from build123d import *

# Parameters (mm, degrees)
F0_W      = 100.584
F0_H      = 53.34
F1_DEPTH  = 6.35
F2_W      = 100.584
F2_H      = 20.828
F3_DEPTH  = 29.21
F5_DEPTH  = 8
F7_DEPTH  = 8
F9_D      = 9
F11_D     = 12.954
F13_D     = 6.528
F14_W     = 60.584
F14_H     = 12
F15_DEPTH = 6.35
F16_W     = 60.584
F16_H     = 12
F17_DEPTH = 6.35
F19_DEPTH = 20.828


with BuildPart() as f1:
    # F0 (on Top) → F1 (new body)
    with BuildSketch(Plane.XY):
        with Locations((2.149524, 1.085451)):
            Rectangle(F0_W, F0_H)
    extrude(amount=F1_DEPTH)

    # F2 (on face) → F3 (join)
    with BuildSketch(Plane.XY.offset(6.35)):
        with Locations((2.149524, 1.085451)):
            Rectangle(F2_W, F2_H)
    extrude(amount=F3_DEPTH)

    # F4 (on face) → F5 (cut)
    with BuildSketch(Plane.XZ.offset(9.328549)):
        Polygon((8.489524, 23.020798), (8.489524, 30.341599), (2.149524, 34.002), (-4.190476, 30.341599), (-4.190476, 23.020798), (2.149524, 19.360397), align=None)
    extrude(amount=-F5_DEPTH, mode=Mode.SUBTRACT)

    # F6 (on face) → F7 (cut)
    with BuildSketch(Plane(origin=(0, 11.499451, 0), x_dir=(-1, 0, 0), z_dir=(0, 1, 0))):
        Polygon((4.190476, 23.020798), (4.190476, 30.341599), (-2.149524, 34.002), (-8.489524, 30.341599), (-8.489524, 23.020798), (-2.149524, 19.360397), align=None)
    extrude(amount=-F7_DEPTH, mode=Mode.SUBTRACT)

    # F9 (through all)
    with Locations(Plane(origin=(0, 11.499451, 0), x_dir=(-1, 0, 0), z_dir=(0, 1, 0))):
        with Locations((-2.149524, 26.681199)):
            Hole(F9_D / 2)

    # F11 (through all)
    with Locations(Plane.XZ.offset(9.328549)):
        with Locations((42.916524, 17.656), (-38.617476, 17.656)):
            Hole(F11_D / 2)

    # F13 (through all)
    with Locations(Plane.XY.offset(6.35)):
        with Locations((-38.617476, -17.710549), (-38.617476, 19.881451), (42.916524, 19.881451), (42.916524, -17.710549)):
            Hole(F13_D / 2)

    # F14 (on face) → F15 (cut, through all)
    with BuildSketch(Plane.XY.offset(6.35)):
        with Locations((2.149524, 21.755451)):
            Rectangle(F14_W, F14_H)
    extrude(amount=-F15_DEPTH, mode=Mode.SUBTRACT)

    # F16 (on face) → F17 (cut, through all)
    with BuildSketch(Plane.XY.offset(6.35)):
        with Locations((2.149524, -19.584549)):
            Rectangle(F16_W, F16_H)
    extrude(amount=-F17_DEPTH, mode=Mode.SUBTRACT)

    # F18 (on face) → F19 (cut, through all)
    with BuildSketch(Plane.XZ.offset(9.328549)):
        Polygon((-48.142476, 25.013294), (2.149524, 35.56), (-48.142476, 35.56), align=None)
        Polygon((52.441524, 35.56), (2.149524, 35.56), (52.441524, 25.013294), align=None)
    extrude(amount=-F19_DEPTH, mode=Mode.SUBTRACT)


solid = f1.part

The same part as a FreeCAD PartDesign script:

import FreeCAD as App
import Part
import Sketcher
Q = App.Units.Quantity

doc = App.newDocument("Part")
body = doc.addObject("PartDesign::Body", "Body")

# Sketch on XY plane
sketch1 = doc.addObject("Sketcher::SketchObject", "Sketch")
body.addObject(sketch1)
sketch1.AttachmentSupport = (doc.XY_Plane, [""])
sketch1.MapMode = "FlatFace"
sketch1.addGeometry(Part.LineSegment(App.Vector(-48, 28, 0), App.Vector(-48, -26, 0)), False)
sketch1.addGeometry(Part.LineSegment(App.Vector(-48, -26, 0), App.Vector(52, -26, 0)), False)
sketch1.addGeometry(Part.LineSegment(App.Vector(52, -26, 0), App.Vector(52, 28, 0)), False)
sketch1.addGeometry(Part.LineSegment(App.Vector(52, 28, 0), App.Vector(-48, 28, 0)), False)
sketch1.addConstraint(Sketcher.Constraint("Coincident", 0, 2, 1, 1))
sketch1.addConstraint(Sketcher.Constraint("Coincident", 1, 2, 2, 1))
sketch1.addConstraint(Sketcher.Constraint("Coincident", 2, 2, 3, 1))
sketch1.addConstraint(Sketcher.Constraint("Coincident", 3, 2, 0, 1))
sketch1.addConstraint(Sketcher.Constraint("Vertical", 0))
sketch1.addConstraint(Sketcher.Constraint("Horizontal", 1))
sketch1.addConstraint(Sketcher.Constraint("Vertical", 2))
sketch1.addConstraint(Sketcher.Constraint("Horizontal", 3))
sketch1.addConstraint(Sketcher.Constraint("DistanceY", 0, 2, 0, 1, Q("2.1 in")))
sketch1.addConstraint(Sketcher.Constraint("DistanceX", 1, 1, 1, 2, Q("3.96 in")))
sketch1.addConstraint(Sketcher.Constraint("DistanceY", 0, 2, -1, 1, 25.584549))
sketch1.addConstraint(Sketcher.Constraint("DistanceX", 0, 2, -1, 1, 48.142476))
pad1 = doc.addObject("PartDesign::Pad", "Pad")
body.addObject(pad1)
pad1.Profile = sketch1
pad1.Length = Q("0.25 in")

# Sketch on XY plane
sketch2 = doc.addObject("Sketcher::SketchObject", "Sketch001")
body.addObject(sketch2)
sketch2.AttachmentSupport = (doc.XY_Plane, [""])
sketch2.MapMode = "FlatFace"
sketch2.AttachmentOffset = App.Placement(App.Vector(0, 0, 0.25 * 25.4), App.Rotation())
sketch2.addGeometry(Part.LineSegment(App.Vector(-48, 11, 0), App.Vector(-48, -9, 0)), False)
sketch2.addGeometry(Part.LineSegment(App.Vector(-48, -9, 0), App.Vector(52, -9, 0)), False)
sketch2.addGeometry(Part.LineSegment(App.Vector(52, -9, 0), App.Vector(52, 11, 0)), False)
sketch2.addGeometry(Part.LineSegment(App.Vector(52, 11, 0), App.Vector(-48, 11, 0)), False)
sketch2.addConstraint(Sketcher.Constraint("Coincident", 0, 2, 1, 1))
sketch2.addConstraint(Sketcher.Constraint("Coincident", 1, 2, 2, 1))
sketch2.addConstraint(Sketcher.Constraint("Coincident", 2, 2, 3, 1))
sketch2.addConstraint(Sketcher.Constraint("Coincident", 3, 2, 0, 1))
sketch2.addConstraint(Sketcher.Constraint("Vertical", 0))
sketch2.addConstraint(Sketcher.Constraint("Horizontal", 1))
sketch2.addConstraint(Sketcher.Constraint("Vertical", 2))
sketch2.addConstraint(Sketcher.Constraint("Horizontal", 3))
sketch2.addConstraint(Sketcher.Constraint("DistanceX", 1, 1, 1, 2, Q("3.96 in")))
sketch2.addConstraint(Sketcher.Constraint("DistanceY", 0, 2, 0, 1, Q("0.82 in")))
sketch2.addConstraint(Sketcher.Constraint("DistanceY", 0, 2, -1, 1, 9.328549))
sketch2.addConstraint(Sketcher.Constraint("DistanceX", 0, 2, -1, 1, 48.142476))
pad2 = doc.addObject("PartDesign::Pad", "Pad001")
body.addObject(pad2)
pad2.Profile = sketch2
pad2.Length = Q("1.15 in")

# Sketch on XZ plane
sketch3 = doc.addObject("Sketcher::SketchObject", "Sketch002")
body.addObject(sketch3)
sketch3.AttachmentSupport = (doc.XZ_Plane, [""])
sketch3.MapMode = "FlatFace"
sketch3.AttachmentOffset = App.Placement(App.Vector(0, 0, 9.328549), App.Rotation())
sketch3.addGeometry(Part.LineSegment(App.Vector(8, 23, 0), App.Vector(8, 30, 0)), False)
sketch3.addGeometry(Part.LineSegment(App.Vector(8, 30, 0), App.Vector(2, 34, 0)), False)
sketch3.addGeometry(Part.LineSegment(App.Vector(2, 34, 0), App.Vector(-4, 30, 0)), False)
sketch3.addGeometry(Part.LineSegment(App.Vector(-4, 30, 0), App.Vector(-4, 23, 0)), False)
sketch3.addGeometry(Part.LineSegment(App.Vector(-4, 23, 0), App.Vector(2, 19, 0)), False)
sketch3.addGeometry(Part.LineSegment(App.Vector(2, 19, 0), App.Vector(8, 23, 0)), False)
sketch3.addConstraint(Sketcher.Constraint("Coincident", 0, 2, 1, 1))
sketch3.addConstraint(Sketcher.Constraint("Coincident", 1, 2, 2, 1))
sketch3.addConstraint(Sketcher.Constraint("Coincident", 2, 2, 3, 1))
sketch3.addConstraint(Sketcher.Constraint("Coincident", 3, 2, 4, 1))
sketch3.addConstraint(Sketcher.Constraint("Coincident", 4, 2, 5, 1))
sketch3.addConstraint(Sketcher.Constraint("Coincident", 5, 2, 0, 1))
sketch3.addConstraint(Sketcher.Constraint("Vertical", 0))
sketch3.addConstraint(Sketcher.Constraint("Vertical", 3))
sketch3.addConstraint(Sketcher.Constraint("Parallel", 1, 4))
sketch3.addConstraint(Sketcher.Constraint("Parallel", 2, 5))
sketch3.addConstraint(Sketcher.Constraint("Horizontal", 0, 2, 2, 2))
sketch3.addConstraint(Sketcher.Constraint("Horizontal", 3, 2, 5, 2))
sketch3.addConstraint(Sketcher.Constraint("Vertical", 1, 2, 4, 2))
sketch3.addConstraint(Sketcher.Constraint("Angle", 1, Q("149.999998 deg")))
sketch3.addConstraint(Sketcher.Constraint("DistanceY", 0, 1, 0, 2, 7.320801))
sketch3.addConstraint(Sketcher.Constraint("Distance", 1, 7.320802))
sketch3.addConstraint(Sketcher.Constraint("DistanceY", -1, 1, 0, 2, 30.341599))
sketch3.addConstraint(Sketcher.Constraint("DistanceX", -1, 1, 0, 2, 8.489524))
pocket1 = doc.addObject("PartDesign::Pocket", "Pocket")
body.addObject(pocket1)
pocket1.Profile = sketch3
pocket1.Length = 8

# Sketch on XZ plane
sketch4 = doc.addObject("Sketcher::SketchObject", "Sketch003")
body.addObject(sketch4)
sketch4.AttachmentSupport = (doc.XZ_Plane, [""])
sketch4.MapMode = "FlatFace"
sketch4.AttachmentOffset = App.Placement(App.Vector(0, 0, -11.499451), App.Rotation())
sketch4.addGeometry(Part.LineSegment(App.Vector(-4, 23, 0), App.Vector(-4, 30, 0)), False)
sketch4.addGeometry(Part.LineSegment(App.Vector(-4, 30, 0), App.Vector(2, 34, 0)), False)
sketch4.addGeometry(Part.LineSegment(App.Vector(2, 34, 0), App.Vector(8, 30, 0)), False)
sketch4.addGeometry(Part.LineSegment(App.Vector(8, 30, 0), App.Vector(8, 23, 0)), False)
sketch4.addGeometry(Part.LineSegment(App.Vector(8, 23, 0), App.Vector(2, 19, 0)), False)
sketch4.addGeometry(Part.LineSegment(App.Vector(2, 19, 0), App.Vector(-4, 23, 0)), False)
sketch4.addConstraint(Sketcher.Constraint("Coincident", 0, 2, 1, 1))
sketch4.addConstraint(Sketcher.Constraint("Coincident", 1, 2, 2, 1))
sketch4.addConstraint(Sketcher.Constraint("Coincident", 2, 2, 3, 1))
sketch4.addConstraint(Sketcher.Constraint("Coincident", 3, 2, 4, 1))
sketch4.addConstraint(Sketcher.Constraint("Coincident", 4, 2, 5, 1))
sketch4.addConstraint(Sketcher.Constraint("Coincident", 5, 2, 0, 1))
sketch4.addConstraint(Sketcher.Constraint("Vertical", 0))
sketch4.addConstraint(Sketcher.Constraint("Vertical", 3))
sketch4.addConstraint(Sketcher.Constraint("Parallel", 1, 4))
sketch4.addConstraint(Sketcher.Constraint("Parallel", 2, 5))
sketch4.addConstraint(Sketcher.Constraint("Horizontal", 0, 2, 2, 2))
sketch4.addConstraint(Sketcher.Constraint("Horizontal", 3, 2, 5, 2))
sketch4.addConstraint(Sketcher.Constraint("Vertical", 1, 2, 4, 2))
sketch4.addConstraint(Sketcher.Constraint("Angle", 1, Q("30.000002 deg")))
sketch4.addConstraint(Sketcher.Constraint("DistanceY", 0, 1, 0, 2, 7.320801))
sketch4.addConstraint(Sketcher.Constraint("Distance", 1, 7.320802))
sketch4.addConstraint(Sketcher.Constraint("DistanceY", -1, 1, 0, 2, 30.341599))
sketch4.addConstraint(Sketcher.Constraint("DistanceX", 0, 2, -1, 1, 4.190476))
pocket2 = doc.addObject("PartDesign::Pocket", "Pocket001")
body.addObject(pocket2)
pocket2.Profile = sketch4
pocket2.Length = 8
pocket2.Reversed = True

# Sketch on XZ plane
sketch5 = doc.addObject("Sketcher::SketchObject", "Sketch004")
body.addObject(sketch5)
sketch5.AttachmentSupport = (doc.XZ_Plane, [""])
sketch5.MapMode = "FlatFace"
sketch5.AttachmentOffset = App.Placement(App.Vector(0, 0, -11.499451), App.Rotation())
sketch5.addGeometry(Part.Circle(App.Vector(2.1, 26.7, 0), App.Vector(0, 0, 1), 4.5), False)
sketch5.addConstraint(Sketcher.Constraint("Diameter", 0, 9.0))
sketch5.addConstraint(Sketcher.Constraint("DistanceY", -1, 1, 0, 3, 26.681199))
sketch5.addConstraint(Sketcher.Constraint("DistanceX", -1, 1, 0, 3, 2.149524))
doc.recompute()
hole = doc.addObject("PartDesign::Hole", "Hole")
body.addObject(hole)
hole.Profile = sketch5
hole.ThreadType = "None"
hole.Diameter = 9
hole.DepthType = "ThroughAll"
hole.Reversed = True

# Sketch on XZ plane
sketch6 = doc.addObject("Sketcher::SketchObject", "Sketch005")
body.addObject(sketch6)
sketch6.AttachmentSupport = (doc.XZ_Plane, [""])
sketch6.MapMode = "FlatFace"
sketch6.AttachmentOffset = App.Placement(App.Vector(0, 0, 9.328549), App.Rotation())
sketch6.addGeometry(Part.Circle(App.Vector(43, 18, 0), App.Vector(0, 0, 1), 6), False)
sketch6.addGeometry(Part.Circle(App.Vector(-39, 18, 0), App.Vector(0, 0, 1), 6), False)
sketch6.addConstraint(Sketcher.Constraint("Equal", 0, 1))
sketch6.addConstraint(Sketcher.Constraint("Horizontal", 0, 3, 1, 3))
sketch6.addConstraint(Sketcher.Constraint("Diameter", 0, Q("0.51 in")))
sketch6.addConstraint(Sketcher.Constraint("DistanceX", 1, 3, 0, 3, Q("3.21 in")))
sketch6.addConstraint(Sketcher.Constraint("DistanceY", -1, 1, 0, 3, 17.656))
sketch6.addConstraint(Sketcher.Constraint("DistanceX", -1, 1, 0, 3, 42.916524))
doc.recompute()
hole2 = doc.addObject("PartDesign::Hole", "Hole001")
body.addObject(hole2)
hole2.Profile = sketch6
hole2.ThreadType = "None"
hole2.Diameter = Q("0.51 in")
hole2.DepthType = "ThroughAll"

# Sketch on XY plane
sketch7 = doc.addObject("Sketcher::SketchObject", "Sketch006")
body.addObject(sketch7)
sketch7.AttachmentSupport = (doc.XY_Plane, [""])
sketch7.MapMode = "FlatFace"
sketch7.AttachmentOffset = App.Placement(App.Vector(0, 0, 0.25 * 25.4), App.Rotation())
sketch7.addGeometry(Part.Circle(App.Vector(-38.6, -17.7, 0), App.Vector(0, 0, 1), 3.3), False)
sketch7.addGeometry(Part.Circle(App.Vector(-38.6, 19.9, 0), App.Vector(0, 0, 1), 3.3), False)
sketch7.addGeometry(Part.Circle(App.Vector(42.9, 19.9, 0), App.Vector(0, 0, 1), 3.3), False)
sketch7.addGeometry(Part.Circle(App.Vector(42.9, -17.7, 0), App.Vector(0, 0, 1), 3.3), False)
sketch7.addConstraint(Sketcher.Constraint("Equal", 0, 1))
sketch7.addConstraint(Sketcher.Constraint("Equal", 1, 2))
sketch7.addConstraint(Sketcher.Constraint("Equal", 2, 3))
sketch7.addConstraint(Sketcher.Constraint("Horizontal", 1, 3, 2, 3))
sketch7.addConstraint(Sketcher.Constraint("Horizontal", 0, 3, 3, 3))
sketch7.addConstraint(Sketcher.Constraint("Vertical", 0, 3, 1, 3))
sketch7.addConstraint(Sketcher.Constraint("Vertical", 2, 3, 3, 3))
sketch7.addConstraint(Sketcher.Constraint("Diameter", 0, 6.528))
sketch7.addConstraint(Sketcher.Constraint("DistanceY", 0, 3, 1, 3, Q("1.48 in")))
sketch7.addConstraint(Sketcher.Constraint("DistanceX", 1, 3, 2, 3, Q("3.21 in")))
sketch7.addConstraint(Sketcher.Constraint("DistanceY", 0, 3, -1, 1, 17.710549))
sketch7.addConstraint(Sketcher.Constraint("DistanceX", 0, 3, -1, 1, 38.617476))
doc.recompute()
hole3 = doc.addObject("PartDesign::Hole", "Hole002")
body.addObject(hole3)
hole3.Profile = sketch7
hole3.ThreadType = "None"
hole3.Diameter = 6.528
hole3.DepthType = "ThroughAll"

# Sketch on XY plane
sketch8 = doc.addObject("Sketcher::SketchObject", "Sketch007")
body.addObject(sketch8)
sketch8.AttachmentSupport = (doc.XY_Plane, [""])
sketch8.MapMode = "FlatFace"
sketch8.AttachmentOffset = App.Placement(App.Vector(0, 0, 0.25 * 25.4), App.Rotation())
sketch8.addGeometry(Part.LineSegment(App.Vector(-28, 28, 0), App.Vector(-28, 16, 0)), False)
sketch8.addGeometry(Part.LineSegment(App.Vector(-28, 16, 0), App.Vector(32, 16, 0)), False)
sketch8.addGeometry(Part.LineSegment(App.Vector(32, 16, 0), App.Vector(32, 28, 0)), False)
sketch8.addGeometry(Part.LineSegment(App.Vector(32, 28, 0), App.Vector(-28, 28, 0)), False)
sketch8.addConstraint(Sketcher.Constraint("Coincident", 0, 2, 1, 1))
sketch8.addConstraint(Sketcher.Constraint("Coincident", 1, 2, 2, 1))
sketch8.addConstraint(Sketcher.Constraint("Coincident", 2, 2, 3, 1))
sketch8.addConstraint(Sketcher.Constraint("Coincident", 3, 2, 0, 1))
sketch8.addConstraint(Sketcher.Constraint("Vertical", 0))
sketch8.addConstraint(Sketcher.Constraint("Horizontal", 1))
sketch8.addConstraint(Sketcher.Constraint("Vertical", 2))
sketch8.addConstraint(Sketcher.Constraint("Horizontal", 3))
sketch8.addConstraint(Sketcher.Constraint("DistanceX", 1, 1, 1, 2, 60.584))
sketch8.addConstraint(Sketcher.Constraint("DistanceY", 0, 2, 0, 1, 12.0))
sketch8.addConstraint(Sketcher.Constraint("DistanceY", -1, 1, 0, 2, 15.755451))
sketch8.addConstraint(Sketcher.Constraint("DistanceX", 0, 2, -1, 1, 28.142476))
pocket3 = doc.addObject("PartDesign::Pocket", "Pocket002")
body.addObject(pocket3)
pocket3.Profile = sketch8
pocket3.Type = "ThroughAll"

# Sketch on XY plane
sketch9 = doc.addObject("Sketcher::SketchObject", "Sketch008")
body.addObject(sketch9)
sketch9.AttachmentSupport = (doc.XY_Plane, [""])
sketch9.MapMode = "FlatFace"
sketch9.AttachmentOffset = App.Placement(App.Vector(0, 0, 0.25 * 25.4), App.Rotation())
sketch9.addGeometry(Part.LineSegment(App.Vector(-28, -14, 0), App.Vector(-28, -26, 0)), False)
sketch9.addGeometry(Part.LineSegment(App.Vector(-28, -26, 0), App.Vector(32, -26, 0)), False)
sketch9.addGeometry(Part.LineSegment(App.Vector(32, -26, 0), App.Vector(32, -14, 0)), False)
sketch9.addGeometry(Part.LineSegment(App.Vector(32, -14, 0), App.Vector(-28, -14, 0)), False)
sketch9.addConstraint(Sketcher.Constraint("Coincident", 0, 2, 1, 1))
sketch9.addConstraint(Sketcher.Constraint("Coincident", 1, 2, 2, 1))
sketch9.addConstraint(Sketcher.Constraint("Coincident", 2, 2, 3, 1))
sketch9.addConstraint(Sketcher.Constraint("Coincident", 3, 2, 0, 1))
sketch9.addConstraint(Sketcher.Constraint("Vertical", 0))
sketch9.addConstraint(Sketcher.Constraint("Horizontal", 1))
sketch9.addConstraint(Sketcher.Constraint("Vertical", 2))
sketch9.addConstraint(Sketcher.Constraint("Horizontal", 3))
sketch9.addConstraint(Sketcher.Constraint("DistanceX", 1, 1, 1, 2, 60.584))
sketch9.addConstraint(Sketcher.Constraint("DistanceY", 0, 2, 0, 1, 12.0))
sketch9.addConstraint(Sketcher.Constraint("DistanceY", 0, 2, -1, 1, 25.584549))
sketch9.addConstraint(Sketcher.Constraint("DistanceX", 0, 2, -1, 1, 28.142476))
pocket4 = doc.addObject("PartDesign::Pocket", "Pocket003")
body.addObject(pocket4)
pocket4.Profile = sketch9
pocket4.Type = "ThroughAll"

# Sketch on XZ plane
sketch10 = doc.addObject("Sketcher::SketchObject", "Sketch009")
body.addObject(sketch10)
sketch10.AttachmentSupport = (doc.XZ_Plane, [""])
sketch10.MapMode = "FlatFace"
sketch10.AttachmentOffset = App.Placement(App.Vector(0, 0, 9.328549), App.Rotation())
sketch10.addGeometry(Part.LineSegment(App.Vector(-48, 25, 0), App.Vector(2, 36, 0)), False)
sketch10.addGeometry(Part.LineSegment(App.Vector(2, 36, 0), App.Vector(-48, 36, 0)), False)
sketch10.addGeometry(Part.LineSegment(App.Vector(-48, 36, 0), App.Vector(-48, 25, 0)), False)
sketch10.addGeometry(Part.LineSegment(App.Vector(52, 36, 0), App.Vector(2, 36, 0)), False)
sketch10.addGeometry(Part.LineSegment(App.Vector(2, 36, 0), App.Vector(52, 25, 0)), False)
sketch10.addGeometry(Part.LineSegment(App.Vector(52, 25, 0), App.Vector(52, 36, 0)), False)
sketch10.addConstraint(Sketcher.Constraint("Coincident", 0, 2, 1, 1))
sketch10.addConstraint(Sketcher.Constraint("Coincident", 1, 2, 2, 1))
sketch10.addConstraint(Sketcher.Constraint("Coincident", 2, 2, 0, 1))
sketch10.addConstraint(Sketcher.Constraint("Coincident", 3, 2, 4, 1))
sketch10.addConstraint(Sketcher.Constraint("Coincident", 4, 2, 5, 1))
sketch10.addConstraint(Sketcher.Constraint("Coincident", 5, 2, 3, 1))
sketch10.addConstraint(Sketcher.Constraint("Horizontal", 1))
sketch10.addConstraint(Sketcher.Constraint("Vertical", 2))
sketch10.addConstraint(Sketcher.Constraint("Horizontal", 3))
sketch10.addConstraint(Sketcher.Constraint("Vertical", 5))
sketch10.addConstraint(Sketcher.Constraint("Coincident", 3, 2, 0, 2))
sketch10.addConstraint(Sketcher.Constraint("Horizontal", 2, 2, 4, 2))
sketch10.addConstraint(Sketcher.Constraint("Equal", 1, 3))
sketch10.addConstraint(Sketcher.Constraint("DistanceX", 1, 2, 1, 1, Q("1.98 in")))
sketch10.addConstraint(Sketcher.Constraint("DistanceY", -1, 1, 0, 2, Q("1.4 in")))
sketch10.addConstraint(Sketcher.Constraint("DistanceY", 2, 2, 2, 1, 10.546706))
sketch10.addConstraint(Sketcher.Constraint("DistanceX", -1, 1, 0, 2, 2.149524))
pocket5 = doc.addObject("PartDesign::Pocket", "Pocket004")
body.addObject(pocket5)
pocket5.Profile = sketch10
pocket5.Type = "ThroughAll"

doc.recompute()
